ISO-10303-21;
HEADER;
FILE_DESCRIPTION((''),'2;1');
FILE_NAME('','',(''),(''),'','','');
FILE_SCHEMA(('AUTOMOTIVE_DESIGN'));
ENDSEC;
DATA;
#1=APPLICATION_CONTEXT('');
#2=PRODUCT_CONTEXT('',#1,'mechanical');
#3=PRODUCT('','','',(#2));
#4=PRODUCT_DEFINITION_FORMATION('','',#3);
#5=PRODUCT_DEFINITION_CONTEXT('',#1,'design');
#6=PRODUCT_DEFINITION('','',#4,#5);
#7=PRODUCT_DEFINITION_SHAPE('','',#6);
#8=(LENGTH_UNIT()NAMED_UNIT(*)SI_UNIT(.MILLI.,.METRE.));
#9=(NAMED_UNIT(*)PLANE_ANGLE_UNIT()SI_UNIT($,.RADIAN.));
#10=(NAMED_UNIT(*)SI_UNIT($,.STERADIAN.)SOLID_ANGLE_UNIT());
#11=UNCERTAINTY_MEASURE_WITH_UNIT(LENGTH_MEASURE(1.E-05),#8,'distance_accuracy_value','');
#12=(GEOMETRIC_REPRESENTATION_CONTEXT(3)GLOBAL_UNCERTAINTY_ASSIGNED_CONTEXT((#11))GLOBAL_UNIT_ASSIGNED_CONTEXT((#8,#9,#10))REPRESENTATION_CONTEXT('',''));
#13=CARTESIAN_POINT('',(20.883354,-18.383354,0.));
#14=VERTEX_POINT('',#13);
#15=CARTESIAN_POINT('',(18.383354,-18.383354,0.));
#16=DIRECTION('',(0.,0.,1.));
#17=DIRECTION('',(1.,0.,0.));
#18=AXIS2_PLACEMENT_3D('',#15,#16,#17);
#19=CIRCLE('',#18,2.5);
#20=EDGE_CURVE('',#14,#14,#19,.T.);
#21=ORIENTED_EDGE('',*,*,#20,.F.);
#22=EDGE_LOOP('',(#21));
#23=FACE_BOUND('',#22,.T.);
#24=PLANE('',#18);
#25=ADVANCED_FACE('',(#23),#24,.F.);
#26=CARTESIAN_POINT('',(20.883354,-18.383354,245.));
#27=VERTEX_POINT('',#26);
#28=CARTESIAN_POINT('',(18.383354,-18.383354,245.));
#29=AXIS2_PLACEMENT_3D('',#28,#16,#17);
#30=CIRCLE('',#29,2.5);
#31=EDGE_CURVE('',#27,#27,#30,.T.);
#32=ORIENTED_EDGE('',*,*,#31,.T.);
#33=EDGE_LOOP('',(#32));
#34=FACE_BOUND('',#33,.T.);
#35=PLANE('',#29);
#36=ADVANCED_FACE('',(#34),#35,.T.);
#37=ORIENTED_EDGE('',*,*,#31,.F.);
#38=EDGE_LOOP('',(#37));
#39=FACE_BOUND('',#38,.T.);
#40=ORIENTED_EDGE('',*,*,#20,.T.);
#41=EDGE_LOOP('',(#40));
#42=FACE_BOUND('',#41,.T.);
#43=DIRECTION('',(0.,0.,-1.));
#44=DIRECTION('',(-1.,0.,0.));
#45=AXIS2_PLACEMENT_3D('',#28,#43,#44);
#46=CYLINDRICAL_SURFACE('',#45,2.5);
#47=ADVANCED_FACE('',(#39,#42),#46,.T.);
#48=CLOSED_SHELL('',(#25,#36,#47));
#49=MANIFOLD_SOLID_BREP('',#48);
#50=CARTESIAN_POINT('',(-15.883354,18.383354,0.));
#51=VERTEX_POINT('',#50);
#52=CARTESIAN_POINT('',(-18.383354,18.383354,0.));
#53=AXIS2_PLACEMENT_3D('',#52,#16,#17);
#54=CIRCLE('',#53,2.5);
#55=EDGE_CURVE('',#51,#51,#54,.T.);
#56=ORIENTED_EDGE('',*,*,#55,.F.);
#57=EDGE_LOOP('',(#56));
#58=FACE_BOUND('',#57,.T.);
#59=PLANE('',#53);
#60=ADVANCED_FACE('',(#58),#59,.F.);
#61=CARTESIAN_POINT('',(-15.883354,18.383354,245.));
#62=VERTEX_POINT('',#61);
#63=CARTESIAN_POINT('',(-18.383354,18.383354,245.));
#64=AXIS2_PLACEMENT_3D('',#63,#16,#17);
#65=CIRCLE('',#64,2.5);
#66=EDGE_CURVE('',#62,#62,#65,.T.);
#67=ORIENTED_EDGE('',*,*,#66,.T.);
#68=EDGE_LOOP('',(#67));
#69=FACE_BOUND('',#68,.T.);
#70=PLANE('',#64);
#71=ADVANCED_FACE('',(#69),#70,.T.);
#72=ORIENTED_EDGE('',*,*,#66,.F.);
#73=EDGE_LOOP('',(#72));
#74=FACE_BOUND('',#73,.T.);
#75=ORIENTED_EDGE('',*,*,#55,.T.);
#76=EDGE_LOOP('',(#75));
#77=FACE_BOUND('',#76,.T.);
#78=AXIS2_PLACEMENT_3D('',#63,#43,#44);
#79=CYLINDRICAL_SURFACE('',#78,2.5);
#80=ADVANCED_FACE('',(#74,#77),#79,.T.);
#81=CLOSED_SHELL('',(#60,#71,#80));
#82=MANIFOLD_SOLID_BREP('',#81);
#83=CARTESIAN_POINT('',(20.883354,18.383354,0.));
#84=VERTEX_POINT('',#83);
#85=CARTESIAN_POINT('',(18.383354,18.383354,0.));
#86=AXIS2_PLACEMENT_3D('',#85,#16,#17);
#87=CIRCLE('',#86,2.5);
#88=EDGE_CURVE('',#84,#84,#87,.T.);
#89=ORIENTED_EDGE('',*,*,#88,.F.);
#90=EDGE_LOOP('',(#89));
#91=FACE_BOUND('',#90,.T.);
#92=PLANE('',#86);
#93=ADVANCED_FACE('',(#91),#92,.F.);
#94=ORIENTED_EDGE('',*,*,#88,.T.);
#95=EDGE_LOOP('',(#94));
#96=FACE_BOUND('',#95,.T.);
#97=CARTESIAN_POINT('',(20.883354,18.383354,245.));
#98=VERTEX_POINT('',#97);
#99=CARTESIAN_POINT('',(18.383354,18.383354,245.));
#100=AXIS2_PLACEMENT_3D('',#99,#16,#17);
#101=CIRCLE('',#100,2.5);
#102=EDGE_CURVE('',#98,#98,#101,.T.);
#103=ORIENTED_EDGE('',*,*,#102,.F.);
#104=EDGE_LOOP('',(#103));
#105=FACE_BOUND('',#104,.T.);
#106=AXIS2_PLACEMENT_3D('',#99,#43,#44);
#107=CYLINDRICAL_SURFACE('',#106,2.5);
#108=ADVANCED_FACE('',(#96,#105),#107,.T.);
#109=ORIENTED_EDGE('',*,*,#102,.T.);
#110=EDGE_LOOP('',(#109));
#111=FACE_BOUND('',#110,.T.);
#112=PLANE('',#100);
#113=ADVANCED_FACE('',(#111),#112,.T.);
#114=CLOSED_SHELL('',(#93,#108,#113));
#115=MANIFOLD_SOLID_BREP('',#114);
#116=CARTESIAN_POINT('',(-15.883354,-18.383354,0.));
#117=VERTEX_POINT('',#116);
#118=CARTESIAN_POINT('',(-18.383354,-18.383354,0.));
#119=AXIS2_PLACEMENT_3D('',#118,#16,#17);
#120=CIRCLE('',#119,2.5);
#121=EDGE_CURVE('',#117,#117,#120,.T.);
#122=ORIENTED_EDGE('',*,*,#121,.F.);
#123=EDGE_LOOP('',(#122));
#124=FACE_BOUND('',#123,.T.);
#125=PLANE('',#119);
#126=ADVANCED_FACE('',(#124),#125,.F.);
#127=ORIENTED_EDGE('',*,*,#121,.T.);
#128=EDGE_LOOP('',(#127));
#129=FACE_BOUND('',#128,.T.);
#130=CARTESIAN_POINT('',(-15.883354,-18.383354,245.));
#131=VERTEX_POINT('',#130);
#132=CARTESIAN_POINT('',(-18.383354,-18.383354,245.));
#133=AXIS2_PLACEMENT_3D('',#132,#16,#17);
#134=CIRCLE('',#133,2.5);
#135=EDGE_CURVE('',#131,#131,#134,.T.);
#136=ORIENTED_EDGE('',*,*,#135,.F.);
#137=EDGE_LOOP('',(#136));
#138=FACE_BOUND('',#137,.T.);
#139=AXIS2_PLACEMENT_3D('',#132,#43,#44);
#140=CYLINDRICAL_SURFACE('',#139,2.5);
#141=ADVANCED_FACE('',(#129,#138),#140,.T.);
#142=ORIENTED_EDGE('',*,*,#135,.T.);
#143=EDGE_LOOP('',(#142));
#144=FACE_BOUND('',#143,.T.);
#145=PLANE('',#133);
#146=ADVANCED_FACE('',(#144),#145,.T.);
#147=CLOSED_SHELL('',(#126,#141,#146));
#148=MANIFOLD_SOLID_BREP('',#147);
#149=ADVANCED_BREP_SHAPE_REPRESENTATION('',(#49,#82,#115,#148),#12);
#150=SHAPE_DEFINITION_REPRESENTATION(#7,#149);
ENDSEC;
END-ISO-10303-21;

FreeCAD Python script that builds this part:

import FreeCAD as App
import Part
import Sketcher

V = App.Vector
Q = App.Units.Quantity

doc = App.newDocument("Part")
params = doc.addObject("Spreadsheet::Sheet", "Params")
for row, (alias, value) in enumerate([
    ("sketch1_diameter", "5 mm"),
    ("pad1_length", "245 mm"),
    ("sketch2_diameter", "5 mm"),
    ("pad2_length", "245 mm"),
    ("sketch3_diameter", "5 mm"),
    ("pad3_length", "245 mm"),
    ("sketch4_diameter", "5 mm"),
    ("pad4_length", "245 mm"),
], start=1):
    params.set(f"A{row}", alias)
    params.set(f"B{row}", "=" + value)
    params.setAlias(f"B{row}", alias)

body = doc.addObject("PartDesign::Body", "Body")

# Sketch on XY plane
sketch1 = body.newObject("Sketcher::SketchObject", "Sketch")
sketch1.AttachmentSupport = (doc.getObject("XY_Plane"), [""])
sketch1.MapMode = "FlatFace"
sketch1.addGeometry(Part.Circle(V(18.383354, 18.383354, 0), V(0, 0, 1), 2.5), False)
sketch1.addConstraint([
    Sketcher.Constraint("Diameter", 0, Q("5 mm")),
    Sketcher.Constraint("DistanceX", -1, 1, 0, 3, Q("18.383354 mm")),
    Sketcher.Constraint("DistanceY", -1, 1, 0, 3, Q("18.383354 mm")),
])
sketch1.setExpression("Constraints[0]", "Params.sketch1_diameter")
pad1 = body.newObject("PartDesign::Pad", "Pad")
pad1.Profile = sketch1
pad1.setExpression("Length", "Params.pad1_length")
body2 = doc.addObject("PartDesign::Body", "Body001")

# Sketch on XY plane
sketch2 = body2.newObject("Sketcher::SketchObject", "Sketch001")
sketch2.AttachmentSupport = (doc.getObject("XY_Plane001"), [""])
sketch2.MapMode = "FlatFace"
sketch2.addGeometry(Part.Circle(V(18.383354, -18.383354, 0), V(0, 0, 1), 2.5), False)
sketch2.addConstraint([
    Sketcher.Constraint("Diameter", 0, Q("5 mm")),
    Sketcher.Constraint("DistanceX", -1, 1, 0, 3, Q("18.383354 mm")),
    Sketcher.Constraint("DistanceY", 0, 3, -1, 1, Q("18.383354 mm")),
])
sketch2.setExpression("Constraints[0]", "Params.sketch2_diameter")
pad2 = body2.newObject("PartDesign::Pad", "Pad001")
pad2.Profile = sketch2
pad2.setExpression("Length", "Params.pad2_length")
body3 = doc.addObject("PartDesign::Body", "Body002")

# Sketch on XY plane
sketch3 = body3.newObject("Sketcher::SketchObject", "Sketch002")
sketch3.AttachmentSupport = (doc.getObject("XY_Plane002"), [""])
sketch3.MapMode = "FlatFace"
sketch3.addGeometry(Part.Circle(V(-18.383354, -18.383354, 0), V(0, 0, 1), 2.5), False)
sketch3.addConstraint([
    Sketcher.Constraint("Diameter", 0, Q("5 mm")),
    Sketcher.Constraint("DistanceX", 0, 3, -1, 1, Q("18.383354 mm")),
    Sketcher.Constraint("DistanceY", 0, 3, -1, 1, Q("18.383354 mm")),
])
sketch3.setExpression("Constraints[0]", "Params.sketch3_diameter")
pad3 = body3.newObject("PartDesign::Pad", "Pad002")
pad3.Profile = sketch3
pad3.setExpression("Length", "Params.pad3_length")
body4 = doc.addObject("PartDesign::Body", "Body003")

# Sketch on XY plane
sketch4 = body4.newObject("Sketcher::SketchObject", "Sketch003")
sketch4.AttachmentSupport = (doc.getObject("XY_Plane003"), [""])
sketch4.MapMode = "FlatFace"
sketch4.addGeometry(Part.Circle(V(-18.383354, 18.383354, 0), V(0, 0, 1), 2.5), False)
sketch4.addConstraint([
    Sketcher.Constraint("Diameter", 0, Q("5 mm")),
    Sketcher.Constraint("DistanceX", 0, 3, -1, 1, Q("18.383354 mm")),
    Sketcher.Constraint("DistanceY", -1, 1, 0, 3, Q("18.383354 mm")),
])
sketch4.setExpression("Constraints[0]", "Params.sketch4_diameter")
pad4 = body4.newObject("PartDesign::Pad", "Pad003")
pad4.Profile = sketch4
pad4.setExpression("Length", "Params.pad4_length")

doc.recompute()
